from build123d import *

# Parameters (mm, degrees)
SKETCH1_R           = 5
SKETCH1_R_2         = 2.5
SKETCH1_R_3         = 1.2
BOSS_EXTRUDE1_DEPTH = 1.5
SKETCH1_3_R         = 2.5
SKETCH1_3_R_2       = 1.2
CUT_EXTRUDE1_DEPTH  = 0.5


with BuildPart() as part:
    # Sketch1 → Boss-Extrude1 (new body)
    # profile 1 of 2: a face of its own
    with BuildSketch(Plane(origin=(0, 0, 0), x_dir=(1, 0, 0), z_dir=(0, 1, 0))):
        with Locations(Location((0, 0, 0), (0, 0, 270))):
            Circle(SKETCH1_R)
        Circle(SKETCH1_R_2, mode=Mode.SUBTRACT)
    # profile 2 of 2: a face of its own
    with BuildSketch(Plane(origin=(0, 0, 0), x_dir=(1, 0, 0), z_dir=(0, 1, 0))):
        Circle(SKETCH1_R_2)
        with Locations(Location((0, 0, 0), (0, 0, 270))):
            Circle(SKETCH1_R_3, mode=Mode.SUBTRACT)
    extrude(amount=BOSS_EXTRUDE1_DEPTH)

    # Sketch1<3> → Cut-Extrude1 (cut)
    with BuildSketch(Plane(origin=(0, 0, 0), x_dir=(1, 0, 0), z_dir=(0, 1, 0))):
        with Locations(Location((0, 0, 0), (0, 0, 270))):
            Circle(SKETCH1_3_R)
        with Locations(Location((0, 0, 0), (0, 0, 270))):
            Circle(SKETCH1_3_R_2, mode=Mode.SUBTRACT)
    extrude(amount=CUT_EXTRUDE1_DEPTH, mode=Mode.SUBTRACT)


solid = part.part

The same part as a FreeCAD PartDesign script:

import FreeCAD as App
import Part
import Sketcher
from FreeCAD import Vector

doc = App.newDocument("Part")
body = doc.addObject("PartDesign::Body", "Body")

# Sketch on XZ plane
sketch1 = body.newObject("Sketcher::SketchObject", "Sketch")
sketch1.AttachmentSupport = (doc.getObject("XZ_Plane"), [""])
sketch1.MapMode = "FlatFace"
sketch1.addGeometry([
    Part.Circle(Vector(0, 0, 0), Vector(0, 0, 1), 5),
    Part.Circle(Vector(0, 0, 0), Vector(0, 0, 1), 1.2),
], False)
sketch1.addConstraint([
    Sketcher.Constraint("Coincident", 0, 3, -1, 1),
    Sketcher.Constraint("Coincident", 1, 3, -1, 1),
    Sketcher.Constraint("Diameter", 0, 10.0),
    Sketcher.Constraint("Diameter", 1, 2.4),
])
pad1 = body.newObject("PartDesign::Pad", "Pad")
pad1.Profile = sketch1
pad1.Length = 1.5
pad1.Reversed = True

# Sketch on XZ plane
sketch2 = body.newObject("Sketcher::SketchObject", "Sketch001")
sketch2.AttachmentSupport = (doc.getObject("XZ_Plane"), [""])
sketch2.MapMode = "FlatFace"
sketch2.addGeometry([
    Part.Circle(Vector(0, 0, 0), Vector(0, 0, 1), 2.5),
    Part.Circle(Vector(0, 0, 0), Vector(0, 0, 1), 1.2),
], False)
sketch2.addConstraint([
    Sketcher.Constraint("Coincident", 0, 3, -1, 1),
    Sketcher.Constraint("Coincident", 1, 3, -1, 1),
    Sketcher.Constraint("Diameter", 0, 5.0),
    Sketcher.Constraint("Diameter", 1, 2.4),
])
pocket1 = body.newObject("PartDesign::Pocket", "Pocket")
pocket1.Profile = sketch2
pocket1.Length = 0.5

doc.recompute()
